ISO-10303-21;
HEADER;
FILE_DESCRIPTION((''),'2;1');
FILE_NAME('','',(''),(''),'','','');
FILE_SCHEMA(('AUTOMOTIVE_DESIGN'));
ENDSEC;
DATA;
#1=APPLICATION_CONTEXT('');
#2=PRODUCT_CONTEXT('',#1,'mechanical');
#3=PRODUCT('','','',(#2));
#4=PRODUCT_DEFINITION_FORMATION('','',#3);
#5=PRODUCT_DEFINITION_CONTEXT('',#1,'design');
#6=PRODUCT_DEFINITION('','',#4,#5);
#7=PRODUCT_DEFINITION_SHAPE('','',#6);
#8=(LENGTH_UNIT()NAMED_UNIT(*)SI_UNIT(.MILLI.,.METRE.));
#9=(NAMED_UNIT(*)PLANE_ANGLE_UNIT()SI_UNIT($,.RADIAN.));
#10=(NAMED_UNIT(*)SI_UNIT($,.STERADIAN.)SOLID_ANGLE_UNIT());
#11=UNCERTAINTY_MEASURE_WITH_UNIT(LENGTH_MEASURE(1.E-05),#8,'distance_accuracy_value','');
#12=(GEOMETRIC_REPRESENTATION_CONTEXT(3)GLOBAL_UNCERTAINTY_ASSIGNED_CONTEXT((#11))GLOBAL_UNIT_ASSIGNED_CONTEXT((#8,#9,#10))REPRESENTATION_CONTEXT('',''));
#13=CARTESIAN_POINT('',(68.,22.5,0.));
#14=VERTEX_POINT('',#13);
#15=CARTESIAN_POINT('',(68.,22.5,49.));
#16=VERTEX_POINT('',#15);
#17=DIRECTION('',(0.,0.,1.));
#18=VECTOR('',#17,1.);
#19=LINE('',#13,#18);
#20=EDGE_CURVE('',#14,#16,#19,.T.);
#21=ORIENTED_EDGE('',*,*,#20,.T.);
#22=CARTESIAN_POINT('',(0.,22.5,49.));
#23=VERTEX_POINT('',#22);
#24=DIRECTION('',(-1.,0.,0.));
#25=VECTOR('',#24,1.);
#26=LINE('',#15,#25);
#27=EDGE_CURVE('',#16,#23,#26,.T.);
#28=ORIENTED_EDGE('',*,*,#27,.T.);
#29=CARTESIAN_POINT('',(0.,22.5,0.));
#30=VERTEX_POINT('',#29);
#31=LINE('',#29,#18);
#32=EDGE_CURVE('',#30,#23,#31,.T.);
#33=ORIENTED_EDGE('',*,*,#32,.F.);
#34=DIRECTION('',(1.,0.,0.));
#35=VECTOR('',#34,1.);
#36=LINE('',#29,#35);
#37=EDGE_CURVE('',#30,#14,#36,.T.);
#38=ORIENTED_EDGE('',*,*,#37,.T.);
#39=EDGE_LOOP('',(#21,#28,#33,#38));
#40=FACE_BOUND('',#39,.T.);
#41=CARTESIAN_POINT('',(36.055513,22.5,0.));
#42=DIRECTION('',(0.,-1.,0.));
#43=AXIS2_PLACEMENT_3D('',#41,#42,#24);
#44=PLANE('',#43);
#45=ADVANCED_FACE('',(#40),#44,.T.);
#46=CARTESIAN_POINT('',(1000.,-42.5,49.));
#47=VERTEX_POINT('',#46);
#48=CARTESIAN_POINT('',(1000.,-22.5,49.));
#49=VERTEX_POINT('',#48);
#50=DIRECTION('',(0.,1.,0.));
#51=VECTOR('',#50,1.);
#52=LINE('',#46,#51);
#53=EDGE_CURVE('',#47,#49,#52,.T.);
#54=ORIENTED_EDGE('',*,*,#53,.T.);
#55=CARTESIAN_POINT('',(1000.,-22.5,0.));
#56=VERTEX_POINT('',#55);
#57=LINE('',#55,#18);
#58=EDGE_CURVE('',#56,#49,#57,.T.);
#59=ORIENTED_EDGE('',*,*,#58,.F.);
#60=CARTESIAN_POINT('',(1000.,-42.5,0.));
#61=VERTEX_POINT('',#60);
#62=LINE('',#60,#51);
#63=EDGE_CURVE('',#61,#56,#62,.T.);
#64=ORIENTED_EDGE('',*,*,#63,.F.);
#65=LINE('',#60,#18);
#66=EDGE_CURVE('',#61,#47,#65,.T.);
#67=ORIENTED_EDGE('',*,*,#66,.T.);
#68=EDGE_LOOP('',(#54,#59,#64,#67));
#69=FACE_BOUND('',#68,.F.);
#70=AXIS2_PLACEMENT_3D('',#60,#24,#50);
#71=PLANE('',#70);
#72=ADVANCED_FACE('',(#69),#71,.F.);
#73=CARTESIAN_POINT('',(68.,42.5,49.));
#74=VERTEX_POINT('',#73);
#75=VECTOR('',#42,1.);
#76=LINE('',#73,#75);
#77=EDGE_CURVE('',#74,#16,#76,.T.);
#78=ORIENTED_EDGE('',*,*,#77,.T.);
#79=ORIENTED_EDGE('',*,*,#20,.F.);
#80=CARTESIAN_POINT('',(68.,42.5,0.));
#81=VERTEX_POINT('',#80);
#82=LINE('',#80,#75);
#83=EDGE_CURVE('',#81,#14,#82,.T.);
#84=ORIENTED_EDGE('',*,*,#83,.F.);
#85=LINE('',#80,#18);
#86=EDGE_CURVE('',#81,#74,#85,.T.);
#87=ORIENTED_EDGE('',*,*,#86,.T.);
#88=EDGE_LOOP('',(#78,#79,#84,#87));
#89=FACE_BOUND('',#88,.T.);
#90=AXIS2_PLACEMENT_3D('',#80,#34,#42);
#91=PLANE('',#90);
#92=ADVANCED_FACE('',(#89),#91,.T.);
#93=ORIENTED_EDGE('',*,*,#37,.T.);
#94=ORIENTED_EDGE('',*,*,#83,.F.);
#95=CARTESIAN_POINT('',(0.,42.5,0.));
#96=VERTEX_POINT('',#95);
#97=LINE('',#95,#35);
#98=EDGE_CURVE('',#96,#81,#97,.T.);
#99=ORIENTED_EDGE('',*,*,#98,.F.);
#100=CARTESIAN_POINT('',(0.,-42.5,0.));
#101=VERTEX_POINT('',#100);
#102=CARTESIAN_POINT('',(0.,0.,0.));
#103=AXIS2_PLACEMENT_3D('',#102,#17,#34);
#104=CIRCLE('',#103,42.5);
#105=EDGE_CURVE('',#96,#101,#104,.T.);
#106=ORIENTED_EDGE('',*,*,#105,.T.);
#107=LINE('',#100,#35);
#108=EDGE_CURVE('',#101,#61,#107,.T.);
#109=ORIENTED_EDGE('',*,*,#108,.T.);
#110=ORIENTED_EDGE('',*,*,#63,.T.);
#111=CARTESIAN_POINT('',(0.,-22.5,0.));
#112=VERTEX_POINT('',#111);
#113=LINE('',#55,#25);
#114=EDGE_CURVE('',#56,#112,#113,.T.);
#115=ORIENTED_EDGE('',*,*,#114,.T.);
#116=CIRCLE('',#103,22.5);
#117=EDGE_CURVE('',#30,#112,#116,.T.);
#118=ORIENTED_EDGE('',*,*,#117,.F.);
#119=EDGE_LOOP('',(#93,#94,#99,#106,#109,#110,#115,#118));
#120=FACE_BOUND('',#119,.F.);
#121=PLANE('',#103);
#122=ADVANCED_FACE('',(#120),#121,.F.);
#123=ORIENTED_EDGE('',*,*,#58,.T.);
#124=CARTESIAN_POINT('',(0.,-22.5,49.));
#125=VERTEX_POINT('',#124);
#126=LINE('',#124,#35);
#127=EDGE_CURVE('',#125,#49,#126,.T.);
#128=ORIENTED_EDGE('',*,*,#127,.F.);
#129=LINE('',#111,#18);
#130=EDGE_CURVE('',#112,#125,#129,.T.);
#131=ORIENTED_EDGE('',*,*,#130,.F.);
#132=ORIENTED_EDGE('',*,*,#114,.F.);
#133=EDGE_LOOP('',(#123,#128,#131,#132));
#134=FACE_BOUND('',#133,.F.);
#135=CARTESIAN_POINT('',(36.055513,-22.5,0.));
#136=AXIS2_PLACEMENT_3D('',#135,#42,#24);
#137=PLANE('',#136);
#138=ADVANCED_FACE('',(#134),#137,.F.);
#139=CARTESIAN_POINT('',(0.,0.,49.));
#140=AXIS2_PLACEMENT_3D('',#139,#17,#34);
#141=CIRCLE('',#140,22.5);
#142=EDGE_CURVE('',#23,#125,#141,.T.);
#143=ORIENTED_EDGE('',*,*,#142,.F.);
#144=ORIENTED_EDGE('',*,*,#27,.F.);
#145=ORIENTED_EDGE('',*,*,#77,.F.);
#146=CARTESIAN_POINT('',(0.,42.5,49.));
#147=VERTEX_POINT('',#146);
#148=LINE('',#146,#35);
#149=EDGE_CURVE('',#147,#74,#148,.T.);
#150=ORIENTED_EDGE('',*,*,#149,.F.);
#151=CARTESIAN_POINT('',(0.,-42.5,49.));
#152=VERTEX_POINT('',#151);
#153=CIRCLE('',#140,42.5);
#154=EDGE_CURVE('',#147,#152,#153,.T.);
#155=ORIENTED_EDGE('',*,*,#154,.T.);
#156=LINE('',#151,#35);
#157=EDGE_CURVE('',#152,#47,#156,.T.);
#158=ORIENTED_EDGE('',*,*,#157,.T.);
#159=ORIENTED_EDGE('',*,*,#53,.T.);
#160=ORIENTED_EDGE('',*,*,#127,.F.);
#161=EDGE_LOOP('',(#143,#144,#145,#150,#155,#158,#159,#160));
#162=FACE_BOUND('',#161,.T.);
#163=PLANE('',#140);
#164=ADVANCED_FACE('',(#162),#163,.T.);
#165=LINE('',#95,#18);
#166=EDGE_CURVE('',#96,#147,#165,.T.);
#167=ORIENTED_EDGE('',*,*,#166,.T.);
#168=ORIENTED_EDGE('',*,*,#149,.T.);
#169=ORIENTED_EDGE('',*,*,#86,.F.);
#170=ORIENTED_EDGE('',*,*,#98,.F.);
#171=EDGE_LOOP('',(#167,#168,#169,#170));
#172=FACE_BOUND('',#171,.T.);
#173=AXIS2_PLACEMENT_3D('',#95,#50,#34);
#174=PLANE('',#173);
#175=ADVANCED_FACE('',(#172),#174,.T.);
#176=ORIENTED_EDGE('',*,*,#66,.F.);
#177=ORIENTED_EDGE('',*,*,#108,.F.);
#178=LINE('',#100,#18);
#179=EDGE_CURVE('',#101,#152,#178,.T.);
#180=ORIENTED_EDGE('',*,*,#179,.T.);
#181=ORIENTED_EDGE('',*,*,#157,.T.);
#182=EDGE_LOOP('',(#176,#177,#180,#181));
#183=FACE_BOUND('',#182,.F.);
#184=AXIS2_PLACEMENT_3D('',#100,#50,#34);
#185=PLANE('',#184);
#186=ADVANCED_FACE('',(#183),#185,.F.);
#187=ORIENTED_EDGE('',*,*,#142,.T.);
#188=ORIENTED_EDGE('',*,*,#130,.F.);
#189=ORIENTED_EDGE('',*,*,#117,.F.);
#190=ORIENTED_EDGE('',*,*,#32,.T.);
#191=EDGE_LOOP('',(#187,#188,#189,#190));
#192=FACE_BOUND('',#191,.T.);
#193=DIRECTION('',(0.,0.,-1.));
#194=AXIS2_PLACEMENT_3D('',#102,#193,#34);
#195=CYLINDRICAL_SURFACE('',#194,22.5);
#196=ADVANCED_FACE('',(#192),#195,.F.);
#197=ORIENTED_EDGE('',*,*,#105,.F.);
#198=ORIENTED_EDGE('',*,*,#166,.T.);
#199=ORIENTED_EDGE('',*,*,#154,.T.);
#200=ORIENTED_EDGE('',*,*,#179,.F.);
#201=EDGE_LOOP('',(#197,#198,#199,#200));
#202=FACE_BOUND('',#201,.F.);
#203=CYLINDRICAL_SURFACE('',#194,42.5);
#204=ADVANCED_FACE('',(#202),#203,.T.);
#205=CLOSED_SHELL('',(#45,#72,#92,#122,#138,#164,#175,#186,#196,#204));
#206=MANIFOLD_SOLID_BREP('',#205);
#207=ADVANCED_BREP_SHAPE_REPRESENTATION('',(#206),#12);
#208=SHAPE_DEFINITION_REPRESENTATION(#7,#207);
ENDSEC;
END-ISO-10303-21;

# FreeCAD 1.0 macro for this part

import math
import FreeCAD as App
import Part
import Sketcher
from FreeCAD import Vector

doc = App.newDocument("Part")
params = doc.addObject("Spreadsheet::Sheet", "Params")
for row, (alias, value) in enumerate([
    ("sketch1_radius", "42.5 mm"),
    ("sketch1_width", "68 mm"),
    ("sketch1_width2", "1000 mm"),
    ("sketch1_height", "20 mm"),
    ("pad1_length", "49 mm"),
], start=1):
    params.set(f"A{row}", alias)
    params.set(f"B{row}", "=" + value)
    params.setAlias(f"B{row}", alias)

body = doc.addObject("PartDesign::Body", "Body")

sketch1 = body.newObject("Sketcher::SketchObject", "Sketch")
sketch1.AttachmentSupport = (doc.getObject("XY_Plane"), [""])
sketch1.MapMode = "FlatFace"
sketch1.addGeometry(Part.ArcOfCircle(Part.Circle(Vector(0, 0, 0), Vector(0, 0, 1), 22), math.radians(90), math.radians(270)), False)
sketch1.addGeometry(Part.LineSegment(Vector(0, 22, 0), Vector(68, 22, 0)), False)
sketch1.addGeometry(Part.LineSegment(Vector(68, 22, 0), Vector(68, 42, 0)), False)
sketch1.addGeometry(Part.LineSegment(Vector(68, 42, 0), Vector(0, 42, 0)), False)
sketch1.addGeometry(Part.ArcOfCircle(Part.Circle(Vector(0, 0, 0), Vector(0, 0, 1), 42), math.radians(90), math.radians(270)), False)
sketch1.addGeometry(Part.LineSegment(Vector(0, -42, 0), Vector(1000, -42, 0)), False)
sketch1.addGeometry(Part.LineSegment(Vector(1000, -42, 0), Vector(1000, -22, 0)), False)
sketch1.addGeometry(Part.LineSegment(Vector(1000, -22, 0), Vector(0, -22, 0)), False)
sketch1.addConstraint(Sketcher.Constraint("Tangent", 0, 1, 1, 1))
sketch1.addConstraint(Sketcher.Constraint("Coincident", 1, 2, 2, 1))
sketch1.addConstraint(Sketcher.Constraint("Coincident", 2, 2, 3, 1))
sketch1.addConstraint(Sketcher.Constraint("Tangent", 3, 2, 4, 1))
sketch1.addConstraint(Sketcher.Constraint("Tangent", 4, 2, 5, 1))
sketch1.addConstraint(Sketcher.Constraint("Coincident", 5, 2, 6, 1))
sketch1.addConstraint(Sketcher.Constraint("Coincident", 6, 2, 7, 1))
sketch1.addConstraint(Sketcher.Constraint("Tangent", 7, 2, 0, 2))
sketch1.addConstraint(Sketcher.Constraint("Horizontal", 1))
sketch1.addConstraint(Sketcher.Constraint("Vertical", 2))
sketch1.addConstraint(Sketcher.Constraint("Horizontal", 3))
sketch1.addConstraint(Sketcher.Constraint("Horizontal", 5))
sketch1.addConstraint(Sketcher.Constraint("Vertical", 6))
sketch1.addConstraint(Sketcher.Constraint("Horizontal", 7))
sketch1.addConstraint(Sketcher.Constraint("Coincident", 0, 3, -1, 1))
sketch1.addConstraint(Sketcher.Constraint("Coincident", 4, 3, -1, 1))
sketch1.addConstraint(Sketcher.Constraint("Radius", 4, 42.5))
sketch1.addConstraint(Sketcher.Constraint("DistanceX", 1, 1, 1, 2, 68.0))
sketch1.addConstraint(Sketcher.Constraint("DistanceX", 5, 1, 5, 2, 1000.0))
sketch1.addConstraint(Sketcher.Constraint("DistanceY", 2, 1, 2, 2, 20.0))
sketch1.setExpression("Constraints[16]", "Params.sketch1_radius")
sketch1.setExpression("Constraints[17]", "Params.sketch1_width")
sketch1.setExpression("Constraints[18]", "Params.sketch1_width2")
sketch1.setExpression("Constraints[19]", "Params.sketch1_height")
pad1 = body.newObject("PartDesign::Pad", "Pad")
pad1.Profile = sketch1
pad1.setExpression("Length", "Params.pad1_length")

doc.recompute()
